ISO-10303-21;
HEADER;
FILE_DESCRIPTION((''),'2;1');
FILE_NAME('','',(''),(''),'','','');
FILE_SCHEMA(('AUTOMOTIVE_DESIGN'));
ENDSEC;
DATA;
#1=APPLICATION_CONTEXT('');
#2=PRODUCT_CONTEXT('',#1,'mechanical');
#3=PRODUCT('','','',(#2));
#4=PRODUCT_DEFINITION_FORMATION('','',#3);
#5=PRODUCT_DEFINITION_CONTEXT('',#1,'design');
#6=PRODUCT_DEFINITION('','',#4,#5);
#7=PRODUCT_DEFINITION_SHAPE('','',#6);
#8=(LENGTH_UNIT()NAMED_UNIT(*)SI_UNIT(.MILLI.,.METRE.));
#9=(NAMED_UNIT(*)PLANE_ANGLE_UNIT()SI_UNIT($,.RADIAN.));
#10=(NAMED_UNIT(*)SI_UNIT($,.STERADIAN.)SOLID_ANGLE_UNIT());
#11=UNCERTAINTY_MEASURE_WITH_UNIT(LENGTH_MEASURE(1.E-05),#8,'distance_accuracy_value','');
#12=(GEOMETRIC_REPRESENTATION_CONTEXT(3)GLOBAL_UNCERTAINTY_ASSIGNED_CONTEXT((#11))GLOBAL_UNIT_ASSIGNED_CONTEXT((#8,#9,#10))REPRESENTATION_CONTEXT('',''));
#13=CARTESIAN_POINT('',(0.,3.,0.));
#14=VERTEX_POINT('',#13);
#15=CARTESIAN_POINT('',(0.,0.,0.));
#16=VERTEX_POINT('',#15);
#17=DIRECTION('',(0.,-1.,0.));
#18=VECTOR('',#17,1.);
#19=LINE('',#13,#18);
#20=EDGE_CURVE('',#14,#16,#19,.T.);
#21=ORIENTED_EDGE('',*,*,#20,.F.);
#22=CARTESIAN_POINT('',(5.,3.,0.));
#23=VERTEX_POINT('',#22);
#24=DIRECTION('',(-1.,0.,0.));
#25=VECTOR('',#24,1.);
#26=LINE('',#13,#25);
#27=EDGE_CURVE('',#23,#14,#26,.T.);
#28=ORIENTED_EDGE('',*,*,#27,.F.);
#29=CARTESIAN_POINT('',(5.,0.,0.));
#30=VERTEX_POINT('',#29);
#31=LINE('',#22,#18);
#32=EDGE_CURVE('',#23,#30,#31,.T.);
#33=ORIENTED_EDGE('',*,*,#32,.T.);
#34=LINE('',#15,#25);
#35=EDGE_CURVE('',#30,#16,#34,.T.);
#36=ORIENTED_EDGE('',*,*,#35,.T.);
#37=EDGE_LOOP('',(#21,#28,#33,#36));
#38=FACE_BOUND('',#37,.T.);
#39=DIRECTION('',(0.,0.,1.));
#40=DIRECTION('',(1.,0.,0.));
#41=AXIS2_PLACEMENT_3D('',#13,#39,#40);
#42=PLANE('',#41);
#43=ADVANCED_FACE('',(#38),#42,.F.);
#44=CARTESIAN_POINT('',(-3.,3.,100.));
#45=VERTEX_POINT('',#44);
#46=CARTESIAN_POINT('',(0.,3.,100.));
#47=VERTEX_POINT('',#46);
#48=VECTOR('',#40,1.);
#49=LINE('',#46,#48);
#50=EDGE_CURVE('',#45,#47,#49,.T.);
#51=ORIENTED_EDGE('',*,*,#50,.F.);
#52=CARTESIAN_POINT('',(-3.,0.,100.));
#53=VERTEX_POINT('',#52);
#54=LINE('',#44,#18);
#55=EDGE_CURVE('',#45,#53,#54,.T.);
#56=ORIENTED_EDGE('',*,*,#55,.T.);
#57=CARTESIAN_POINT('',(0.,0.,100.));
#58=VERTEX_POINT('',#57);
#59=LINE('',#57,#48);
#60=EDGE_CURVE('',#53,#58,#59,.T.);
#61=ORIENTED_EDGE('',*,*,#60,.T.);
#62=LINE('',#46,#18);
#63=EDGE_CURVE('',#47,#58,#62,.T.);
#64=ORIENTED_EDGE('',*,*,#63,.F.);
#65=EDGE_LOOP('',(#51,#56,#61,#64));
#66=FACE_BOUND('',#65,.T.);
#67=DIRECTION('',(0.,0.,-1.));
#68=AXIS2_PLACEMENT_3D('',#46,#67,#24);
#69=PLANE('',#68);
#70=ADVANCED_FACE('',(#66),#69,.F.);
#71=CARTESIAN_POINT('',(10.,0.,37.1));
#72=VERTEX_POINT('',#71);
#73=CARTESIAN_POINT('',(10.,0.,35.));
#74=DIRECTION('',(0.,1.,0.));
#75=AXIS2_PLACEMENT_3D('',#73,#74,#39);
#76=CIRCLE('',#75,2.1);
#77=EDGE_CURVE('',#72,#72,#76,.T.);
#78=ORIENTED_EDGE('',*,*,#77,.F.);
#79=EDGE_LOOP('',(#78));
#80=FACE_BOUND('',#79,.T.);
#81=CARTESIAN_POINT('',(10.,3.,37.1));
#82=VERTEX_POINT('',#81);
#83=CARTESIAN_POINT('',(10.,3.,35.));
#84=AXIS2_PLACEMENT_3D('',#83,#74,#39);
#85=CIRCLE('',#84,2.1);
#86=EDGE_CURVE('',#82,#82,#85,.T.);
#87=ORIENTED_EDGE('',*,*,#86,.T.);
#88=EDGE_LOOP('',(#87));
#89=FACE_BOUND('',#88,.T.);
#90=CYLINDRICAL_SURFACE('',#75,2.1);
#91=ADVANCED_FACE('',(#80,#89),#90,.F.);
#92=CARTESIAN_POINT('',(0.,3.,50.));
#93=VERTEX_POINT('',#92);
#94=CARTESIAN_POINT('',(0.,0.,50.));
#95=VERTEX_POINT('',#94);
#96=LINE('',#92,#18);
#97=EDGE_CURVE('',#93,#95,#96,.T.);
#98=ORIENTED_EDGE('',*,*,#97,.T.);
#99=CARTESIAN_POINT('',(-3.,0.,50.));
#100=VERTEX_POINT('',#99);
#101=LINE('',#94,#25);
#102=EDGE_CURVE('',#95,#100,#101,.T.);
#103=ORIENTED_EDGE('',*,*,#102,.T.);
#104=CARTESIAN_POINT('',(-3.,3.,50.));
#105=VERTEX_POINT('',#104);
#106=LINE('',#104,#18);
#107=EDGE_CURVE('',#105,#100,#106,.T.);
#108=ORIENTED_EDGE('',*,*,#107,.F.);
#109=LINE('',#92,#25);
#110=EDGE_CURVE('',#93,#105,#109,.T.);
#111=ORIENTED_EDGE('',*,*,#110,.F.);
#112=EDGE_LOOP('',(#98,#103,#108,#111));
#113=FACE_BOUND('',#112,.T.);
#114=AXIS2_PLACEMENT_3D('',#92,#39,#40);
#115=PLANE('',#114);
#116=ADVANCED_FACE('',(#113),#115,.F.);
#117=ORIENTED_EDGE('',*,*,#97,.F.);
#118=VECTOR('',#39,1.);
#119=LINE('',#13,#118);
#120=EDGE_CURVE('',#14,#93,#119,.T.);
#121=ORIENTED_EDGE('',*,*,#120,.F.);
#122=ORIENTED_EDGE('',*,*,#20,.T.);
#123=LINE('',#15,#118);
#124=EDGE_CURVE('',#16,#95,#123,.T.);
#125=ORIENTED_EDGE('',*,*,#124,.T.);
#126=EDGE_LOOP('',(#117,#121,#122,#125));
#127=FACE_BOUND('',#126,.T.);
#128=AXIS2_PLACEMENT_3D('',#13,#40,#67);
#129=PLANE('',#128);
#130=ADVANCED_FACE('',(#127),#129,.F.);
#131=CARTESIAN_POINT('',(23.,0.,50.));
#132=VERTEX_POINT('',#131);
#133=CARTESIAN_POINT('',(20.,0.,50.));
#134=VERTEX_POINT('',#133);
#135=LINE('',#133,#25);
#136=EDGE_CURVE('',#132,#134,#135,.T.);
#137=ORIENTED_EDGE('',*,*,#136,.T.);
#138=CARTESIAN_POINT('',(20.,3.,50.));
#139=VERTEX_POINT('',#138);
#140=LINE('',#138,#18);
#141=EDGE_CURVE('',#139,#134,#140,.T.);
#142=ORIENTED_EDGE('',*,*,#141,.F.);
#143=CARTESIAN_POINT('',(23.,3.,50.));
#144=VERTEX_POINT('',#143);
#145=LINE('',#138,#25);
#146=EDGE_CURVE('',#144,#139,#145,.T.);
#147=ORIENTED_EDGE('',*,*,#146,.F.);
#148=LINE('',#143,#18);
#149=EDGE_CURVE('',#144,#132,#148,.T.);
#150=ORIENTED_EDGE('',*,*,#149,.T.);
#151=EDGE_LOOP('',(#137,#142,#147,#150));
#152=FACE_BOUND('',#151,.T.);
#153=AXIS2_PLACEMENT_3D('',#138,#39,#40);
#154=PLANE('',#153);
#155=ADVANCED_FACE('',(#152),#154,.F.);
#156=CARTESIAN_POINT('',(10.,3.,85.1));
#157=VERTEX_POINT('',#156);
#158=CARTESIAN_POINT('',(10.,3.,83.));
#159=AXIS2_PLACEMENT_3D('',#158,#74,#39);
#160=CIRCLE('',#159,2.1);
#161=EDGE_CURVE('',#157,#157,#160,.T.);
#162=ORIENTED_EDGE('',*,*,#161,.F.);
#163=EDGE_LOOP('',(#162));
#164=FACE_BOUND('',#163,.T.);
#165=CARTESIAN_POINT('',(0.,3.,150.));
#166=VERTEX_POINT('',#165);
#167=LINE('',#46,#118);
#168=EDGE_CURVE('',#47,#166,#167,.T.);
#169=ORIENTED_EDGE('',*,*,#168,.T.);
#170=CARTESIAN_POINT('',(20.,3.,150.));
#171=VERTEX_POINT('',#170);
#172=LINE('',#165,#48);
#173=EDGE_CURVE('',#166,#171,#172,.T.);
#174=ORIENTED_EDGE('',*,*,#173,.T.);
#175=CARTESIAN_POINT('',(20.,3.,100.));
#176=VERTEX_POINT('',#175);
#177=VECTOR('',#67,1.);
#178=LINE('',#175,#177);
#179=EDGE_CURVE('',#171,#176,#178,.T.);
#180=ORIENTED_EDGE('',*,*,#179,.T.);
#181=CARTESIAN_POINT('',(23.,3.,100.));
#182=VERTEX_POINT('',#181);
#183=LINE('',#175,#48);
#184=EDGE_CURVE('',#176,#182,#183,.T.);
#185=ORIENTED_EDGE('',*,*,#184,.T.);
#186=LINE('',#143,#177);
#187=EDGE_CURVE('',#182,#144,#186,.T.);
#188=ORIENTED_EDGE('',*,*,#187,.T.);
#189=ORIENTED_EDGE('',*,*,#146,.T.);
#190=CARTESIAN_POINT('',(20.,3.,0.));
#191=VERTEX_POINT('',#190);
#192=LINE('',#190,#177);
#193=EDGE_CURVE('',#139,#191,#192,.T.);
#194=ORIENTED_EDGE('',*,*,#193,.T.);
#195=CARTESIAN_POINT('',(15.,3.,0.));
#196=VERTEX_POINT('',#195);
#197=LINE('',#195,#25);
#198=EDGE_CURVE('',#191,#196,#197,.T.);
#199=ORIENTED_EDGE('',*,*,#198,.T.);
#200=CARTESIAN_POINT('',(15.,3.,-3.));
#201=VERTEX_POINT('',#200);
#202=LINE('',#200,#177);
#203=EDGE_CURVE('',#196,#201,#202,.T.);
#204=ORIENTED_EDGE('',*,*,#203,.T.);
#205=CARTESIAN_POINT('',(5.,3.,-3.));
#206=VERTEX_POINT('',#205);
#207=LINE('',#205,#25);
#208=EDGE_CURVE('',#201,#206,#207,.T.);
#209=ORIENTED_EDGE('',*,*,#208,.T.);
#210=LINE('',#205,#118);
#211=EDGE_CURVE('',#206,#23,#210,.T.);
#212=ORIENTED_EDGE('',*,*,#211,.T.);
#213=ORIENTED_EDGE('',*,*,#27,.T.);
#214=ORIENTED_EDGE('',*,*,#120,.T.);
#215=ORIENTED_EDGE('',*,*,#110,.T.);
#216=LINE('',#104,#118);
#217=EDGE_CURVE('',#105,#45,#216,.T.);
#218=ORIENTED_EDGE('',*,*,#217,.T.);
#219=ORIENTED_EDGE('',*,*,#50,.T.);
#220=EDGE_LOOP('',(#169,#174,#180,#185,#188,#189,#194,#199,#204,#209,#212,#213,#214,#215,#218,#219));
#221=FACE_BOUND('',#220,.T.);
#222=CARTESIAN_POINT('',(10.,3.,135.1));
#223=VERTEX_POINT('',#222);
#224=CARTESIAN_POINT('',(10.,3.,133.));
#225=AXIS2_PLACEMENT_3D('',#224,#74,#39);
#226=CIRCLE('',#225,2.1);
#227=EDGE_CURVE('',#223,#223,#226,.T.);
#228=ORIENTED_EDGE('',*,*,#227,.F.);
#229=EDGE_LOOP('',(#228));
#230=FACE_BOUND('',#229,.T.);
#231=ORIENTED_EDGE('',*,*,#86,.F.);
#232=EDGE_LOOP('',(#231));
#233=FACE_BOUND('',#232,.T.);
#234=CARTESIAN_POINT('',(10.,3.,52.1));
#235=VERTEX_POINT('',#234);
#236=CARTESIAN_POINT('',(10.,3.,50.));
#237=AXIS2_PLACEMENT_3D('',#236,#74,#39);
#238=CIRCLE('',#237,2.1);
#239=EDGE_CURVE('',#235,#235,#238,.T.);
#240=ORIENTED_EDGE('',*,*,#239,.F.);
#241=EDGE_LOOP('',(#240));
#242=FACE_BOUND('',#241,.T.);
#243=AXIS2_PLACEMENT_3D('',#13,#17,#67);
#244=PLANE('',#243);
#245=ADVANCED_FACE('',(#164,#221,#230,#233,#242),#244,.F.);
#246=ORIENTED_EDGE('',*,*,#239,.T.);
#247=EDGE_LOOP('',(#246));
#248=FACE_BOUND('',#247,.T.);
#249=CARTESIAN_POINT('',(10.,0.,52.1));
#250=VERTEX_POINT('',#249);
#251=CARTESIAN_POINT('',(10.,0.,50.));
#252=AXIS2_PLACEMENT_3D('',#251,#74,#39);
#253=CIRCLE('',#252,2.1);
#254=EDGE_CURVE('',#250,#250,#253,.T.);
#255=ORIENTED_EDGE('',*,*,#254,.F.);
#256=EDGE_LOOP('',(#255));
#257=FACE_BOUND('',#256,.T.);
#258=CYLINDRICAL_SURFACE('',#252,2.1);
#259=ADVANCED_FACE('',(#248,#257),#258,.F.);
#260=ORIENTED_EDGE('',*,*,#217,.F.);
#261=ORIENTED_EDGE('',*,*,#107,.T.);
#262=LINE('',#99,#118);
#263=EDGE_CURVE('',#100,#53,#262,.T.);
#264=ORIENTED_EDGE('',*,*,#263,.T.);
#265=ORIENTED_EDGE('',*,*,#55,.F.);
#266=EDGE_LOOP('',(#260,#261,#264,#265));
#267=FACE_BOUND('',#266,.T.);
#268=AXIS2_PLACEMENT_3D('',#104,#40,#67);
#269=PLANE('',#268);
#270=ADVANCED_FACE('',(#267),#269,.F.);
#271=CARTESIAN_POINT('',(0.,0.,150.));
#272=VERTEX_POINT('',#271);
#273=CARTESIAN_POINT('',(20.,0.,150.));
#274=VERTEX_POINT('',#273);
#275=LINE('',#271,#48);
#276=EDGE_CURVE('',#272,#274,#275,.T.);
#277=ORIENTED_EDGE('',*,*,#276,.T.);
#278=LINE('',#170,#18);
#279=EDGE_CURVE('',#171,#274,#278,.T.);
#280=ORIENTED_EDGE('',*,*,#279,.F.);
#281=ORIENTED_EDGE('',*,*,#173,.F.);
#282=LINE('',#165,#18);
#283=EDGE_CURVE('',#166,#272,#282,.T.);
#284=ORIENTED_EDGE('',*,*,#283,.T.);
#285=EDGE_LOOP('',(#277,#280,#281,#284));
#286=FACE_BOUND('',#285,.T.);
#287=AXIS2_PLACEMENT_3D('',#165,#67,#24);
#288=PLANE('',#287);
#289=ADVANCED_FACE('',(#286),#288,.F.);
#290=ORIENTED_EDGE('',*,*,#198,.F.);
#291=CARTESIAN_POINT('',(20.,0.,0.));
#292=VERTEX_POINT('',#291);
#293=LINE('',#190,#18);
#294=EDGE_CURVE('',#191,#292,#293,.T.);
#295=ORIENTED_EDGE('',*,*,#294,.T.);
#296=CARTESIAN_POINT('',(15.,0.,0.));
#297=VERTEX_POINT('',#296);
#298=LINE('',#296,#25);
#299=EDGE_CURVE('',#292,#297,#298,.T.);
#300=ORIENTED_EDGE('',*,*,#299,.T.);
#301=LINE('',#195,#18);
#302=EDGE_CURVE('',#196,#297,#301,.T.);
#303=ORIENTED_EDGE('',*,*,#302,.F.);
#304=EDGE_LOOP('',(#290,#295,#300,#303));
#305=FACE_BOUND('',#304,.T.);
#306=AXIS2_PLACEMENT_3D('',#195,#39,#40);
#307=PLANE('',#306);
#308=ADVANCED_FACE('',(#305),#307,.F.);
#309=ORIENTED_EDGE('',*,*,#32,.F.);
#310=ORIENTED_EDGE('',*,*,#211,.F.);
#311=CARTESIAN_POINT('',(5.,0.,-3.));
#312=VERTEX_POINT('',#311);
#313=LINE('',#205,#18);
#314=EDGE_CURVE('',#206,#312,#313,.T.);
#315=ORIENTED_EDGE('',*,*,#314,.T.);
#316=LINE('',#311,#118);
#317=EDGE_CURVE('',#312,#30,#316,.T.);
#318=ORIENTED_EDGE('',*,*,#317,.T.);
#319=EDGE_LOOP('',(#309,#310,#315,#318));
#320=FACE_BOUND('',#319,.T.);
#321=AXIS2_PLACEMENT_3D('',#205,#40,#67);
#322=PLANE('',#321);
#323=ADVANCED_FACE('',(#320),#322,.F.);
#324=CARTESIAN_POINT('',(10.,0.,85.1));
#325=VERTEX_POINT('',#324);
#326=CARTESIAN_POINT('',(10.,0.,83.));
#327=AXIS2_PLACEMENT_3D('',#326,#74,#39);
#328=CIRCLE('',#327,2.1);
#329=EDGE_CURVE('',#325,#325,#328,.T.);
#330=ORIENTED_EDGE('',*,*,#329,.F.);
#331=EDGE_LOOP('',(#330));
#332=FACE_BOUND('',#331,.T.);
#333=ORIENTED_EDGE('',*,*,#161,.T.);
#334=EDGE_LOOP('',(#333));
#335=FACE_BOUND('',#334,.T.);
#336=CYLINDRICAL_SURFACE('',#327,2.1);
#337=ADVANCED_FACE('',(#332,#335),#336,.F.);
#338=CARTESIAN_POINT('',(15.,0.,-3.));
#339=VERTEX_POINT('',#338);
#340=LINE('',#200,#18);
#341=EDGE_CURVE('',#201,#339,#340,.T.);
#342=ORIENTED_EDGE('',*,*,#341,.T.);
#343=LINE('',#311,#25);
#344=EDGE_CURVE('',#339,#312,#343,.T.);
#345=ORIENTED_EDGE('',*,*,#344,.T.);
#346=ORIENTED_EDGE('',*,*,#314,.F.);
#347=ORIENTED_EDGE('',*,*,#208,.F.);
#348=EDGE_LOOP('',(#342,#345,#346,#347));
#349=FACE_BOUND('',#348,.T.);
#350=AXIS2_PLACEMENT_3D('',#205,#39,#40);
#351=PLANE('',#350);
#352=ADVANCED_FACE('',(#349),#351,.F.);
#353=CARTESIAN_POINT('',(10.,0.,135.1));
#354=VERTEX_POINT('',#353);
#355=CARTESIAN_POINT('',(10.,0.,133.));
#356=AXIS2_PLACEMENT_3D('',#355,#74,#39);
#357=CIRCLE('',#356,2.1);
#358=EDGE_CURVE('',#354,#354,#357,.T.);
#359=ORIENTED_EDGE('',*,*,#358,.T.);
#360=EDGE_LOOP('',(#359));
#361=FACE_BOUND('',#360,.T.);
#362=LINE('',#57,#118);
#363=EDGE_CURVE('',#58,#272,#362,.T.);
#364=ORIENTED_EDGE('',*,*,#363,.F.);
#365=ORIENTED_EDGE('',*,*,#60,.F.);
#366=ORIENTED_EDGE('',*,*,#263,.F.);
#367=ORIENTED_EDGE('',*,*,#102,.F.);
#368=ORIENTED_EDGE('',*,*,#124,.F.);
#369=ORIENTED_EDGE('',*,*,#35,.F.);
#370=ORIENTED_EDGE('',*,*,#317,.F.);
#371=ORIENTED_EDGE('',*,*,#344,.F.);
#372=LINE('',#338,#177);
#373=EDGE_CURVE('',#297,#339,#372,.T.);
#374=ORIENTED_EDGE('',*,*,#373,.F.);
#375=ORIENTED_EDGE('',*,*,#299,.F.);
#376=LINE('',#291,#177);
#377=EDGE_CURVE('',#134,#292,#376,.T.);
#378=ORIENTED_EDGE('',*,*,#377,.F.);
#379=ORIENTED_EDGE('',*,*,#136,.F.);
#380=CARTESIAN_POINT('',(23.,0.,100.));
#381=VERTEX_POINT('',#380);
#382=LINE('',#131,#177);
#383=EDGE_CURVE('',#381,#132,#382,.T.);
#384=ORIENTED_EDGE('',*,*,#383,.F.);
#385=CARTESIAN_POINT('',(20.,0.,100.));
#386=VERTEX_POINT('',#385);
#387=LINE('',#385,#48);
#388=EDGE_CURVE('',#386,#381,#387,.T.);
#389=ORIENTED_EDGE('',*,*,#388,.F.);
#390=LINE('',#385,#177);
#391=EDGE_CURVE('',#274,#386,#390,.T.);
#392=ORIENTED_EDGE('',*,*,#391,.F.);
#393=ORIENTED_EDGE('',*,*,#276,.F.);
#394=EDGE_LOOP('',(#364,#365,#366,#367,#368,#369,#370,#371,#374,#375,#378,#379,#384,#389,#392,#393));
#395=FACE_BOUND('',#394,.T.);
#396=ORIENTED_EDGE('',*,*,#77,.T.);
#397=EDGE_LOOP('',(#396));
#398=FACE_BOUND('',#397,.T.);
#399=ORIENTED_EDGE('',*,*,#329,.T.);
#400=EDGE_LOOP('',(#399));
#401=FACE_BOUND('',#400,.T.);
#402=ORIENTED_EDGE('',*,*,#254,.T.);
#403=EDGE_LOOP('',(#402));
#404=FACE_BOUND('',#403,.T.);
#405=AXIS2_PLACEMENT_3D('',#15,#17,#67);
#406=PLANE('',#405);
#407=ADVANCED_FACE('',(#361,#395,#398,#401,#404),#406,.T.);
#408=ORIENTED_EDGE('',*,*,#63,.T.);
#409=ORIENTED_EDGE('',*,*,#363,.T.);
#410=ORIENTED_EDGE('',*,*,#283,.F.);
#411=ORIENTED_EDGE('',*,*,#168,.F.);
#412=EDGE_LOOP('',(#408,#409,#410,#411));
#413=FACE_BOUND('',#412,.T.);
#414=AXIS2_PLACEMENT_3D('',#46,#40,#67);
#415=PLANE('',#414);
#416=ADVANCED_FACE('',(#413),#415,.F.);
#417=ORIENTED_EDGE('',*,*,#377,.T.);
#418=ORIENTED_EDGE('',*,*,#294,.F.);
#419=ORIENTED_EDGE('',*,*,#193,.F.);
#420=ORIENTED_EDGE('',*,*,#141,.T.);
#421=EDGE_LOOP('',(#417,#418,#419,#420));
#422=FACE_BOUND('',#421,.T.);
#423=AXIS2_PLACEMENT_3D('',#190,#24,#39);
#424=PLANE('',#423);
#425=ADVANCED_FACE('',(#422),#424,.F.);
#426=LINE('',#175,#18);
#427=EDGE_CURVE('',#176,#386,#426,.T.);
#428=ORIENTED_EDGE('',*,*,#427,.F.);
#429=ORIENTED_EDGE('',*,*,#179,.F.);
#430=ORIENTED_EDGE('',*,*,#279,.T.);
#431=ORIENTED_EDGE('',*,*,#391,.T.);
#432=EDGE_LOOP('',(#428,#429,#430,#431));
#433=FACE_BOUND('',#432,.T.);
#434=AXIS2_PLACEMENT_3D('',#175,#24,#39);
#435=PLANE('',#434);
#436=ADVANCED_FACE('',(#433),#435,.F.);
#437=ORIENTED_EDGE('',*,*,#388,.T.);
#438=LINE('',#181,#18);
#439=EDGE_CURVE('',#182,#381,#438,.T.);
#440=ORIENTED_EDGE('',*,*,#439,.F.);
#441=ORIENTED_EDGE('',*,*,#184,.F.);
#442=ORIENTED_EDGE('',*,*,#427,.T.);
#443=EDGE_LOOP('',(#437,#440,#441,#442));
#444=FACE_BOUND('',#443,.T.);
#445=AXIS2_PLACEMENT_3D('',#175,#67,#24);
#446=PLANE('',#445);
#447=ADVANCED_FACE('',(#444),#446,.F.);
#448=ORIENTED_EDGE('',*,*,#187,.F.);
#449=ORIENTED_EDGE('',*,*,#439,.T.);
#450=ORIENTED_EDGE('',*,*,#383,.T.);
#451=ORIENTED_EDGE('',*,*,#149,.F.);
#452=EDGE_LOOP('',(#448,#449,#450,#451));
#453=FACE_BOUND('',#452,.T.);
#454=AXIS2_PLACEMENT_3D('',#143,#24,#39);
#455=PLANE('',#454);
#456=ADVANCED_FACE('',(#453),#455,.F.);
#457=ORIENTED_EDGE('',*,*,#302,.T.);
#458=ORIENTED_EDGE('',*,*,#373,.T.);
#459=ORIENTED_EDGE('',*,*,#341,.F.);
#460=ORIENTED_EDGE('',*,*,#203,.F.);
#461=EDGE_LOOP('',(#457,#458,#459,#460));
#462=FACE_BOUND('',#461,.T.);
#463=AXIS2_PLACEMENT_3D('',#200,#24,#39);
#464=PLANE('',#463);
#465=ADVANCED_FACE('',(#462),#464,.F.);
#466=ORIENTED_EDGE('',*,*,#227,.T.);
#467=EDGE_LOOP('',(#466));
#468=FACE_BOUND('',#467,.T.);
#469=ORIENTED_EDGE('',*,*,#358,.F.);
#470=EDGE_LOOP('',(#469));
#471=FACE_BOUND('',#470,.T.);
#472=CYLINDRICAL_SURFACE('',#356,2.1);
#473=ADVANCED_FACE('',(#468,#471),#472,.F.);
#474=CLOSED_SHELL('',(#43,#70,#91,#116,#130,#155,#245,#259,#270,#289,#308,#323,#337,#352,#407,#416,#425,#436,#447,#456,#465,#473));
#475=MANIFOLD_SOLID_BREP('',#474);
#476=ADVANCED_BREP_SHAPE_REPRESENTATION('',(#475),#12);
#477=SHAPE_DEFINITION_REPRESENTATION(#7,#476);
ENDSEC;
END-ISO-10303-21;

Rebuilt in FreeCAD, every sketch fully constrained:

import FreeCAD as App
import Part
import Sketcher
Q = App.Units.Quantity


def add_polygon(sketch, points):
    """Adds a closed chain of lines whose ends are joined by coincident constraints."""
    first, n = sketch.GeometryCount, len(points)
    for a, b in zip(points, points[1:] + points[:1]):
        sketch.addGeometry(Part.LineSegment(App.Vector(*a, 0), App.Vector(*b, 0)), False)
    for i in range(n):
        sketch.addConstraint(Sketcher.Constraint("Coincident", first + i, 2, first + (i + 1) % n, 1))

doc = App.newDocument("Part")
params = doc.addObject("Spreadsheet::Sheet", "Params")
for row, (alias, value) in enumerate([
    ("sketch1_width", "5 mm"),
    ("sketch1_width2", "10 mm"),
    ("sketch1_width3", "3 mm"),
    ("sketch1_height", "50 mm"),
    ("pad1_length", "3 mm"),
    ("sketch2_diameter", "4.2 mm"),
], start=1):
    params.set(f"A{row}", alias)
    params.set(f"B{row}", "=" + value)
    params.setAlias(f"B{row}", alias)

body = doc.addObject("PartDesign::Body", "Body")

sketch1 = doc.addObject("Sketcher::SketchObject", "Sketch")
body.addObject(sketch1)
sketch1.AttachmentSupport = (doc.XZ_Plane, [""])
sketch1.MapMode = "FlatFace"
add_polygon(sketch1, [(20, 0), (15, 0), (15, -3), (5, -3), (5, 0), (0, 0), (0, 50), (-3, 50), (-3, 100), (0, 100), (0, 150), (20, 150), (20, 100), (23, 100), (23, 50), (20, 50)])
sketch1.addConstraint([
    Sketcher.Constraint("Horizontal", 0),
    Sketcher.Constraint("Vertical", 1),
    Sketcher.Constraint("Horizontal", 2),
    Sketcher.Constraint("Vertical", 3),
    Sketcher.Constraint("Horizontal", 4),
    Sketcher.Constraint("Vertical", 5),
    Sketcher.Constraint("Horizontal", 6),
    Sketcher.Constraint("Vertical", 7),
    Sketcher.Constraint("Horizontal", 8),
    Sketcher.Constraint("Vertical", 9),
    Sketcher.Constraint("Horizontal", 10),
    Sketcher.Constraint("Vertical", 11),
    Sketcher.Constraint("Horizontal", 12),
    Sketcher.Constraint("Vertical", 13),
    Sketcher.Constraint("Horizontal", 14),
    Sketcher.Constraint("Vertical", 15),
    Sketcher.Constraint("Coincident", 4, 2, -1, 1),
    Sketcher.Constraint("PointOnObject", 0, 2, -1),
    Sketcher.Constraint("PointOnObject", 8, 2, -2),
    Sketcher.Constraint("Horizontal", 8, 2, 11, 2),
    Sketcher.Constraint("Horizontal", 6, 2, 13, 2),
    Sketcher.Constraint("Vertical", 11, 2, 14, 2),
    Sketcher.Constraint("Equal", 0, 4),
    Sketcher.Constraint("Equal", 8, 12),
    Sketcher.Constraint("Equal", 14, 1),
    Sketcher.Constraint("Equal", 5, 7),
    Sketcher.Constraint("Equal", 7, 9),
    Sketcher.Constraint("DistanceX", 0, 2, 0, 1, Q("5 mm")),
    Sketcher.Constraint("DistanceX", 2, 2, 2, 1, Q("10 mm")),
    Sketcher.Constraint("DistanceX", 6, 2, 6, 1, Q("3 mm")),
    Sketcher.Constraint("DistanceY", 5, 1, 5, 2, Q("50 mm")),
])
sketch1.setExpression("Constraints[43]", "Params.sketch1_width")
sketch1.setExpression("Constraints[44]", "Params.sketch1_width2")
sketch1.setExpression("Constraints[45]", "Params.sketch1_width3")
sketch1.setExpression("Constraints[46]", "Params.sketch1_height")
pad1 = doc.addObject("PartDesign::Pad", "Pad")
body.addObject(pad1)
pad1.Profile = sketch1
pad1.setExpression("Length", "Params.pad1_length")
pad1.Reversed = True

sketch2 = doc.addObject("Sketcher::SketchObject", "Sketch001")
body.addObject(sketch2)
sketch2.AttachmentSupport = (doc.XZ_Plane, [""])
sketch2.MapMode = "FlatFace"
sketch2.AttachmentOffset = App.Placement(App.Vector(0, 0, -3), App.Rotation())
sketch2.addGeometry([
    Part.Circle(App.Vector(10, 35, 0), App.Vector(0, 0, 1), 2.1),
    Part.Circle(App.Vector(10, 50, 0), App.Vector(0, 0, 1), 2.1),
    Part.Circle(App.Vector(10, 83, 0), App.Vector(0, 0, 1), 2.1),
    Part.Circle(App.Vector(10, 133, 0), App.Vector(0, 0, 1), 2.1),
], False)
sketch2.addConstraint([
    Sketcher.Constraint("Equal", 0, 1),
    Sketcher.Constraint("Equal", 1, 2),
    Sketcher.Constraint("Equal", 2, 3),
    Sketcher.Constraint("Vertical", 0, 3, 1, 3),
    Sketcher.Constraint("Vertical", 1, 3, 2, 3),
    Sketcher.Constraint("Vertical", 2, 3, 3, 3),
    Sketcher.Constraint("Diameter", 0, Q("4.2 mm")),
    Sketcher.Constraint("DistanceX", -1, 1, 0, 3, Q("10 mm")),
    Sketcher.Constraint("DistanceY", -1, 1, 0, 3, Q("35 mm")),
    Sketcher.Constraint("DistanceY", -1, 1, 1, 3, Q("50 mm")),
    Sketcher.Constraint("DistanceY", -1, 1, 2, 3, Q("83 mm")),
    Sketcher.Constraint("DistanceY", -1, 1, 3, 3, Q("133 mm")),
])
sketch2.setExpression("Constraints[6]", "Params.sketch2_diameter")
pocket1 = doc.addObject("PartDesign::Pocket", "Pocket")
body.addObject(pocket1)
pocket1.Profile = sketch2
pocket1.Type = "ThroughAll"
pocket1.Reversed = True

doc.recompute()
